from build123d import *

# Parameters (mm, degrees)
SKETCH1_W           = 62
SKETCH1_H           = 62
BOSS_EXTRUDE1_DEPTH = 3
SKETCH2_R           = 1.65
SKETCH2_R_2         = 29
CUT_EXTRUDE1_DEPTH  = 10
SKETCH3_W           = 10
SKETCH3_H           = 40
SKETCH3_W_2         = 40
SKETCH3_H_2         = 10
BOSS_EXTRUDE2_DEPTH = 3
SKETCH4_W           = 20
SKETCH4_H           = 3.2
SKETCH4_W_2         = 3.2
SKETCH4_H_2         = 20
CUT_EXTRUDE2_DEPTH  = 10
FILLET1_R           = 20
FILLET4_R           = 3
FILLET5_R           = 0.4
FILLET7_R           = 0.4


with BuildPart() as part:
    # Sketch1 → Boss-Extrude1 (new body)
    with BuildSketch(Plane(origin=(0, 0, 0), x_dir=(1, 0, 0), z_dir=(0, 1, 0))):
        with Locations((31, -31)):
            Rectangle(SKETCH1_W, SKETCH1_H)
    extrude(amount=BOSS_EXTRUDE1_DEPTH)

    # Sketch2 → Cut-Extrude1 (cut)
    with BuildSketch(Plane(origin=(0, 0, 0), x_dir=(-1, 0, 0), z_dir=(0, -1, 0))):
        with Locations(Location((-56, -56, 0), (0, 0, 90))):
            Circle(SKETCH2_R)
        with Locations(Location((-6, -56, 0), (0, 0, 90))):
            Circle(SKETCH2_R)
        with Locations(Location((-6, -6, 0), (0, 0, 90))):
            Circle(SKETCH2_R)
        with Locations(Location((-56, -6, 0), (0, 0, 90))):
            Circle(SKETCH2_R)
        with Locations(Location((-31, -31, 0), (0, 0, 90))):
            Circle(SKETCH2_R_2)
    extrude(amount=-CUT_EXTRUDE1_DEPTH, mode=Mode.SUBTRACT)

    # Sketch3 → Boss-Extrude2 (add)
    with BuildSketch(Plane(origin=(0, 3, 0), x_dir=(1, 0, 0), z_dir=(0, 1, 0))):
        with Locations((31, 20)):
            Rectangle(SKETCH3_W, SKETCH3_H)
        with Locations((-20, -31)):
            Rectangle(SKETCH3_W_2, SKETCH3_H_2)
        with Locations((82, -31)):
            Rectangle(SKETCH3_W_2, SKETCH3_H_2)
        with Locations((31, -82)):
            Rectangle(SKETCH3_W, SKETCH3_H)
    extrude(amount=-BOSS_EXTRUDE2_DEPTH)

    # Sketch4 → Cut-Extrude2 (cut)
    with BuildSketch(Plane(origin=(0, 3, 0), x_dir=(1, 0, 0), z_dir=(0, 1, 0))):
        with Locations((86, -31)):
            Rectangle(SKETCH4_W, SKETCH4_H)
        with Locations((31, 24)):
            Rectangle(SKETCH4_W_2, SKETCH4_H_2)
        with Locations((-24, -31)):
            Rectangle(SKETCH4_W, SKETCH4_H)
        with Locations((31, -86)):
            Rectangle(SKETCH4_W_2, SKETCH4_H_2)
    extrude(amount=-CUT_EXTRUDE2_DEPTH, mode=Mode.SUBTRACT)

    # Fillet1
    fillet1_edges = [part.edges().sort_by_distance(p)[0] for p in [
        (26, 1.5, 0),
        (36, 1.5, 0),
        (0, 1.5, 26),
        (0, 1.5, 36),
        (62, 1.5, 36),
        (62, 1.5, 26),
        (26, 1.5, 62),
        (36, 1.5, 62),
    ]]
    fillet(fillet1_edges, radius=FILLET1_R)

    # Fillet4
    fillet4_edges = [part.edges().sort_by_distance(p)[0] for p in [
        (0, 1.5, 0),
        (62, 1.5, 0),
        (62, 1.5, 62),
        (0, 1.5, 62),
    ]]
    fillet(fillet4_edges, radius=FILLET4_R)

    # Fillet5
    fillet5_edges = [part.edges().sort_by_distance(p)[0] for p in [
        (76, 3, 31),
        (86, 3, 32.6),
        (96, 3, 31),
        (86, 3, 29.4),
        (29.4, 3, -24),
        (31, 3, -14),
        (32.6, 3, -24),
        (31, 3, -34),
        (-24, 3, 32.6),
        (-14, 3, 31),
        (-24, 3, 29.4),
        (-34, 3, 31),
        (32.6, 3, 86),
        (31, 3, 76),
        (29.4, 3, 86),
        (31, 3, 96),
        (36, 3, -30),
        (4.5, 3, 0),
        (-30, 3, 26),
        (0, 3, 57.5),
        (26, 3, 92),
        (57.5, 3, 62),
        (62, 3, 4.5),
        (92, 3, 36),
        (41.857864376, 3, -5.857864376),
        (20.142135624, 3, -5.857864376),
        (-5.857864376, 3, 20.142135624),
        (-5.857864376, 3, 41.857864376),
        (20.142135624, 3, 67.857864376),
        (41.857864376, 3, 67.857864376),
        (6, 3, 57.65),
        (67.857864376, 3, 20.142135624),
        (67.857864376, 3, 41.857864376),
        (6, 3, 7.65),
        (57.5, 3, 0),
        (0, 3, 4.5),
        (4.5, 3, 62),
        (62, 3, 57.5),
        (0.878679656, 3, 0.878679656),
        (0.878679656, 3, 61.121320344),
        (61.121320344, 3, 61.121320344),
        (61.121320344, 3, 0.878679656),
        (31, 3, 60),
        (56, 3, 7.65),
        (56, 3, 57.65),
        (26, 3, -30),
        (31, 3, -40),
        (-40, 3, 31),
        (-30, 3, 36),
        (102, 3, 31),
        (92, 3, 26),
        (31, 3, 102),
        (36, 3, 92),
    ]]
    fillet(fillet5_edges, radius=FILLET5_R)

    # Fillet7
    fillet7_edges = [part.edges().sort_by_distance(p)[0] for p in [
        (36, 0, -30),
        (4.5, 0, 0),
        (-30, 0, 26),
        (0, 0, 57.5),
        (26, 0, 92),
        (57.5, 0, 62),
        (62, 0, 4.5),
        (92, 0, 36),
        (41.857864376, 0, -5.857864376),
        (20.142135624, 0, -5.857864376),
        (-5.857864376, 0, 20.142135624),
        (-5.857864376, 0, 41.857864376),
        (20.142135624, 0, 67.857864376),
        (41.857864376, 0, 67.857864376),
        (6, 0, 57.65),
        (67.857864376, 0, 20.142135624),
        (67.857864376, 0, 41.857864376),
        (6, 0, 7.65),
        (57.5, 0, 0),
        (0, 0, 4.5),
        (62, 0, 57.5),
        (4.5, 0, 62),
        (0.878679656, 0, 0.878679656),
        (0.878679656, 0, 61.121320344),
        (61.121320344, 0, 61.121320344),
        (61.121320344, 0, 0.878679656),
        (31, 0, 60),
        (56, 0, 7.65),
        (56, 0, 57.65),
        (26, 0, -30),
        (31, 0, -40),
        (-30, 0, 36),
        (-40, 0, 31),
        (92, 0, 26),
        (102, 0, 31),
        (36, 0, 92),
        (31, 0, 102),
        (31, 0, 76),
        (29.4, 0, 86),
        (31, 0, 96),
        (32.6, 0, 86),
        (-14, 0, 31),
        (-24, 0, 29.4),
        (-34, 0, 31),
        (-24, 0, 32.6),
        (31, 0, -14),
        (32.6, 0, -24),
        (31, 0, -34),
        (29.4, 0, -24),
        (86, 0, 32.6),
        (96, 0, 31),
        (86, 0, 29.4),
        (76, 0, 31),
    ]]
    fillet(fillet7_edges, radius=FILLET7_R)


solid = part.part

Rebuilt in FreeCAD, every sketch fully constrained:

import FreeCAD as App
import Part
import Sketcher
Q = App.Units.Quantity


def edges_at(feature, points):
    """Names of the edges that pass closest to the given points."""
    edges = feature.Shape.Edges
    near = lambda p: min(range(len(edges)), key=lambda i: edges[i].distToShape(Part.Vertex(*p))[0])
    return sorted({f"Edge{near(p) + 1}" for p in points})

doc = App.newDocument("Part")
params = doc.addObject("Spreadsheet::Sheet", "Params")
for row, (alias, value) in enumerate([
    ("sketch1_width", "62 mm"),
    ("pad1_length", "3 mm"),
    ("sketch2_diameter", "58 mm"),
    ("sketch2_diameter2", "3.3 mm"),
    ("pocket1_length", "10 mm"),
    ("sketch3_width", "10 mm"),
    ("sketch3_width2", "40 mm"),
    ("pad2_length", "3 mm"),
    ("sketch4_width", "20 mm"),
    ("sketch4_width2", "3.2 mm"),
    ("pocket2_length", "10 mm"),
    ("fillet_radius", "20 mm"),
    ("fillet2_radius", "3 mm"),
    ("fillet3_radius", "0.4 mm"),
    ("fillet4_radius", "0.4 mm"),
], start=1):
    params.set(f"A{row}", alias)
    params.set(f"B{row}", "=" + value)
    params.setAlias(f"B{row}", alias)

body = doc.addObject("PartDesign::Body", "Body")

# Sketch on XZ plane
sketch1 = body.newObject("Sketcher::SketchObject", "Sketch")
sketch1.AttachmentSupport = (doc.getObject("XZ_Plane"), [""])
sketch1.MapMode = "FlatFace"
sketch1.addGeometry(Part.LineSegment(App.Vector(0, 0, 0), App.Vector(0, 62, 0)), False)
sketch1.addGeometry(Part.LineSegment(App.Vector(0, 62, 0), App.Vector(62, 62, 0)), False)
sketch1.addGeometry(Part.LineSegment(App.Vector(62, 62, 0), App.Vector(62, 0, 0)), False)
sketch1.addGeometry(Part.LineSegment(App.Vector(62, 0, 0), App.Vector(0, 0, 0)), False)
sketch1.addConstraint(Sketcher.Constraint("Coincident", 0, 2, 1, 1))
sketch1.addConstraint(Sketcher.Constraint("Coincident", 1, 2, 2, 1))
sketch1.addConstraint(Sketcher.Constraint("Coincident", 2, 2, 3, 1))
sketch1.addConstraint(Sketcher.Constraint("Coincident", 3, 2, 0, 1))
sketch1.addConstraint(Sketcher.Constraint("Vertical", 0))
sketch1.addConstraint(Sketcher.Constraint("Horizontal", 1))
sketch1.addConstraint(Sketcher.Constraint("Vertical", 2))
sketch1.addConstraint(Sketcher.Constraint("Horizontal", 3))
sketch1.addConstraint(Sketcher.Constraint("Coincident", 3, 2, -1, 1))
sketch1.addConstraint(Sketcher.Constraint("Equal", 3, 0))
sketch1.addConstraint(Sketcher.Constraint("DistanceX", 1, 1, 1, 2, Q("62 mm")))
sketch1.setExpression("Constraints[10]", "Params.sketch1_width")
pad1 = body.newObject("PartDesign::Pad", "Pad")
pad1.Profile = sketch1
pad1.setExpression("Length", "Params.pad1_length")
pad1.Reversed = True

# Sketch on XZ plane
sketch2 = body.newObject("Sketcher::SketchObject", "Sketch001")
sketch2.AttachmentSupport = (doc.getObject("XZ_Plane"), [""])
sketch2.MapMode = "FlatFace"
sketch2.addGeometry(Part.Circle(App.Vector(56, 56, 0), App.Vector(0, 0, 1), 1.6), False)
sketch2.addGeometry(Part.Circle(App.Vector(6, 56, 0), App.Vector(0, 0, 1), 1.6), False)
sketch2.addGeometry(Part.Circle(App.Vector(6, 6, 0), App.Vector(0, 0, 1), 1.6), False)
sketch2.addGeometry(Part.Circle(App.Vector(56, 6, 0), App.Vector(0, 0, 1), 1.6), False)
sketch2.addGeometry(Part.Circle(App.Vector(31, 31, 0), App.Vector(0, 0, 1), 29), False)
sketch2.addConstraint(Sketcher.Constraint("Equal", 0, 1))
sketch2.addConstraint(Sketcher.Constraint("Equal", 1, 2))
sketch2.addConstraint(Sketcher.Constraint("Equal", 2, 3))
sketch2.addConstraint(Sketcher.Constraint("Horizontal", 0, 3, 1, 3))
sketch2.addConstraint(Sketcher.Constraint("Horizontal", 2, 3, 3, 3))
sketch2.addConstraint(Sketcher.Constraint("Vertical", 1, 3, 2, 3))
sketch2.addConstraint(Sketcher.Constraint("Vertical", 0, 3, 3, 3))
sketch2.addConstraint(Sketcher.Constraint("Diameter", 4, Q("58 mm")))
sketch2.addConstraint(Sketcher.Constraint("Diameter", 0, Q("3.3 mm")))
sketch2.addConstraint(Sketcher.Constraint("DistanceX", -1, 1, 0, 3, Q("56 mm")))
sketch2.addConstraint(Sketcher.Constraint("DistanceY", -1, 1, 0, 3, Q("56 mm")))
sketch2.addConstraint(Sketcher.Constraint("DistanceX", -1, 1, 1, 3, Q("6 mm")))
sketch2.addConstraint(Sketcher.Constraint("DistanceY", -1, 1, 2, 3, Q("6 mm")))
sketch2.addConstraint(Sketcher.Constraint("DistanceX", -1, 1, 4, 3, Q("31 mm")))
sketch2.addConstraint(Sketcher.Constraint("DistanceY", -1, 1, 4, 3, Q("31 mm")))
sketch2.setExpression("Constraints[7]", "Params.sketch2_diameter")
sketch2.setExpression("Constraints[8]", "Params.sketch2_diameter2")
pocket1 = body.newObject("PartDesign::Pocket", "Pocket")
pocket1.Profile = sketch2
pocket1.setExpression("Length", "Params.pocket1_length")

# Sketch on XZ plane
sketch3 = body.newObject("Sketcher::SketchObject", "Sketch002")
sketch3.AttachmentSupport = (doc.getObject("XZ_Plane"), [""])
sketch3.MapMode = "FlatFace"
sketch3.AttachmentOffset = App.Placement(App.Vector(0, 0, -3), App.Rotation())
sketch3.addGeometry(Part.LineSegment(App.Vector(26, -40, 0), App.Vector(26, 0, 0)), False)
sketch3.addGeometry(Part.LineSegment(App.Vector(26, 0, 0), App.Vector(36, 0, 0)), False)
sketch3.addGeometry(Part.LineSegment(App.Vector(36, 0, 0), App.Vector(36, -40, 0)), False)
sketch3.addGeometry(Part.LineSegment(App.Vector(36, -40, 0), App.Vector(26, -40, 0)), False)
sketch3.addGeometry(Part.LineSegment(App.Vector(-40, 26, 0), App.Vector(-40, 36, 0)), False)
sketch3.addGeometry(Part.LineSegment(App.Vector(-40, 36, 0), App.Vector(0, 36, 0)), False)
sketch3.addGeometry(Part.LineSegment(App.Vector(0, 36, 0), App.Vector(0, 26, 0)), False)
sketch3.addGeometry(Part.LineSegment(App.Vector(0, 26, 0), App.Vector(-40, 26, 0)), False)
sketch3.addGeometry(Part.LineSegment(App.Vector(62, 26, 0), App.Vector(62, 36, 0)), False)
sketch3.addGeometry(Part.LineSegment(App.Vector(62, 36, 0), App.Vector(102, 36, 0)), False)
sketch3.addGeometry(Part.LineSegment(App.Vector(102, 36, 0), App.Vector(102, 26, 0)), False)
sketch3.addGeometry(Part.LineSegment(App.Vector(102, 26, 0), App.Vector(62, 26, 0)), False)
sketch3.addGeometry(Part.LineSegment(App.Vector(26, 62, 0), App.Vector(26, 102, 0)), False)
sketch3.addGeometry(Part.LineSegment(App.Vector(26, 102, 0), App.Vector(36, 102, 0)), False)
sketch3.addGeometry(Part.LineSegment(App.Vector(36, 102, 0), App.Vector(36, 62, 0)), False)
sketch3.addGeometry(Part.LineSegment(App.Vector(36, 62, 0), App.Vector(26, 62, 0)), False)
sketch3.addConstraint(Sketcher.Constraint("Coincident", 0, 2, 1, 1))
sketch3.addConstraint(Sketcher.Constraint("Coincident", 1, 2, 2, 1))
sketch3.addConstraint(Sketcher.Constraint("Coincident", 2, 2, 3, 1))
sketch3.addConstraint(Sketcher.Constraint("Coincident", 3, 2, 0, 1))
sketch3.addConstraint(Sketcher.Constraint("Coincident", 4, 2, 5, 1))
sketch3.addConstraint(Sketcher.Constraint("Coincident", 5, 2, 6, 1))
sketch3.addConstraint(Sketcher.Constraint("Coincident", 6, 2, 7, 1))
sketch3.addConstraint(Sketcher.Constraint("Coincident", 7, 2, 4, 1))
sketch3.addConstraint(Sketcher.Constraint("Coincident", 8, 2, 9, 1))
sketch3.addConstraint(Sketcher.Constraint("Coincident", 9, 2, 10, 1))
sketch3.addConstraint(Sketcher.Constraint("Coincident", 10, 2, 11, 1))
sketch3.addConstraint(Sketcher.Constraint("Coincident", 11, 2, 8, 1))
sketch3.addConstraint(Sketcher.Constraint("Coincident", 12, 2, 13, 1))
sketch3.addConstraint(Sketcher.Constraint("Coincident", 13, 2, 14, 1))
sketch3.addConstraint(Sketcher.Constraint("Coincident", 14, 2, 15, 1))
sketch3.addConstraint(Sketcher.Constraint("Coincident", 15, 2, 12, 1))
sketch3.addConstraint(Sketcher.Constraint("Vertical", 0))
sketch3.addConstraint(Sketcher.Constraint("Horizontal", 1))
sketch3.addConstraint(Sketcher.Constraint("Vertical", 2))
sketch3.addConstraint(Sketcher.Constraint("Horizontal", 3))
sketch3.addConstraint(Sketcher.Constraint("Vertical", 4))
sketch3.addConstraint(Sketcher.Constraint("Horizontal", 5))
sketch3.addConstraint(Sketcher.Constraint("Vertical", 6))
sketch3.addConstraint(Sketcher.Constraint("Horizontal", 7))
sketch3.addConstraint(Sketcher.Constraint("Vertical", 8))
sketch3.addConstraint(Sketcher.Constraint("Horizontal", 9))
sketch3.addConstraint(Sketcher.Constraint("Vertical", 10))
sketch3.addConstraint(Sketcher.Constraint("Horizontal", 11))
sketch3.addConstraint(Sketcher.Constraint("Vertical", 12))
sketch3.addConstraint(Sketcher.Constraint("Horizontal", 13))
sketch3.addConstraint(Sketcher.Constraint("Vertical", 14))
sketch3.addConstraint(Sketcher.Constraint("Horizontal", 15))
sketch3.addConstraint(Sketcher.Constraint("PointOnObject", 0, 2, -1))
sketch3.addConstraint(Sketcher.Constraint("PointOnObject", 5, 2, -2))
sketch3.addConstraint(Sketcher.Constraint("Horizontal", 5, 2, 8, 2))
sketch3.addConstraint(Sketcher.Constraint("Horizontal", 7, 2, 10, 2))
sketch3.addConstraint(Sketcher.Constraint("Vertical", 3, 2, 12, 2))
sketch3.addConstraint(Sketcher.Constraint("Vertical", 2, 2, 13, 2))
sketch3.addConstraint(Sketcher.Constraint("Equal", 7, 9))
sketch3.addConstraint(Sketcher.Constraint("Equal", 11, 0))
sketch3.addConstraint(Sketcher.Constraint("Equal", 15, 4))
sketch3.addConstraint(Sketcher.Constraint("Equal", 2, 12))
sketch3.addConstraint(Sketcher.Constraint("DistanceX", 1, 1, 1, 2, Q("10 mm")))
sketch3.addConstraint(Sketcher.Constraint("DistanceX", 5, 1, 5, 2, Q("40 mm")))
sketch3.addConstraint(Sketcher.Constraint("DistanceX", -1, 1, 0, 2, Q("26 mm")))
sketch3.addConstraint(Sketcher.Constraint("DistanceY", -1, 1, 4, 2, Q("36 mm")))
sketch3.addConstraint(Sketcher.Constraint("DistanceX", -1, 1, 8, 2, Q("62 mm")))
sketch3.addConstraint(Sketcher.Constraint("DistanceY", -1, 1, 12, 2, Q("102 mm")))
sketch3.setExpression("Constraints[42]", "Params.sketch3_width")
sketch3.setExpression("Constraints[43]", "Params.sketch3_width2")
pad2 = body.newObject("PartDesign::Pad", "Pad001")
pad2.Profile = sketch3
pad2.setExpression("Length", "Params.pad2_length")

# Sketch on XZ plane
sketch4 = body.newObject("Sketcher::SketchObject", "Sketch003")
sketch4.AttachmentSupport = (doc.getObject("XZ_Plane"), [""])
sketch4.MapMode = "FlatFace"
sketch4.AttachmentOffset = App.Placement(App.Vector(0, 0, -3), App.Rotation())
sketch4.addGeometry(Part.LineSegment(App.Vector(76, 29.4, 0), App.Vector(76, 32.6, 0)), False)
sketch4.addGeometry(Part.LineSegment(App.Vector(76, 32.6, 0), App.Vector(96, 32.6, 0)), False)
sketch4.addGeometry(Part.LineSegment(App.Vector(96, 32.6, 0), App.Vector(96, 29.4, 0)), False)
sketch4.addGeometry(Part.LineSegment(App.Vector(96, 29.4, 0), App.Vector(76, 29.4, 0)), False)
sketch4.addGeometry(Part.LineSegment(App.Vector(29.4, -34, 0), App.Vector(29.4, -14, 0)), False)
sketch4.addGeometry(Part.LineSegment(App.Vector(29.4, -14, 0), App.Vector(32.6, -14, 0)), False)
sketch4.addGeometry(Part.LineSegment(App.Vector(32.6, -14, 0), App.Vector(32.6, -34, 0)), False)
sketch4.addGeometry(Part.LineSegment(App.Vector(32.6, -34, 0), App.Vector(29.4, -34, 0)), False)
sketch4.addGeometry(Part.LineSegment(App.Vector(-34, 29.4, 0), App.Vector(-34, 32.6, 0)), False)
sketch4.addGeometry(Part.LineSegment(App.Vector(-34, 32.6, 0), App.Vector(-14, 32.6, 0)), False)
sketch4.addGeometry(Part.LineSegment(App.Vector(-14, 32.6, 0), App.Vector(-14, 29.4, 0)), False)
sketch4.addGeometry(Part.LineSegment(App.Vector(-14, 29.4, 0), App.Vector(-34, 29.4, 0)), False)
sketch4.addGeometry(Part.LineSegment(App.Vector(29.4, 76, 0), App.Vector(29.4, 96, 0)), False)
sketch4.addGeometry(Part.LineSegment(App.Vector(29.4, 96, 0), App.Vector(32.6, 96, 0)), False)
sketch4.addGeometry(Part.LineSegment(App.Vector(32.6, 96, 0), App.Vector(32.6, 76, 0)), False)
sketch4.addGeometry(Part.LineSegment(App.Vector(32.6, 76, 0), App.Vector(29.4, 76, 0)), False)
sketch4.addConstraint(Sketcher.Constraint("Coincident", 0, 2, 1, 1))
sketch4.addConstraint(Sketcher.Constraint("Coincident", 1, 2, 2, 1))
sketch4.addConstraint(Sketcher.Constraint("Coincident", 2, 2, 3, 1))
sketch4.addConstraint(Sketcher.Constraint("Coincident", 3, 2, 0, 1))
sketch4.addConstraint(Sketcher.Constraint("Coincident", 4, 2, 5, 1))
sketch4.addConstraint(Sketcher.Constraint("Coincident", 5, 2, 6, 1))
sketch4.addConstraint(Sketcher.Constraint("Coincident", 6, 2, 7, 1))
sketch4.addConstraint(Sketcher.Constraint("Coincident", 7, 2, 4, 1))
sketch4.addConstraint(Sketcher.Constraint("Coincident", 8, 2, 9, 1))
sketch4.addConstraint(Sketcher.Constraint("Coincident", 9, 2, 10, 1))
sketch4.addConstraint(Sketcher.Constraint("Coincident", 10, 2, 11, 1))
sketch4.addConstraint(Sketcher.Constraint("Coincident", 11, 2, 8, 1))
sketch4.addConstraint(Sketcher.Constraint("Coincident", 12, 2, 13, 1))
sketch4.addConstraint(Sketcher.Constraint("Coincident", 13, 2, 14, 1))
sketch4.addConstraint(Sketcher.Constraint("Coincident", 14, 2, 15, 1))
sketch4.addConstraint(Sketcher.Constraint("Coincident", 15, 2, 12, 1))
sketch4.addConstraint(Sketcher.Constraint("Vertical", 0))
sketch4.addConstraint(Sketcher.Constraint("Horizontal", 1))
sketch4.addConstraint(Sketcher.Constraint("Vertical", 2))
sketch4.addConstraint(Sketcher.Constraint("Horizontal", 3))
sketch4.addConstraint(Sketcher.Constraint("Vertical", 4))
sketch4.addConstraint(Sketcher.Constraint("Horizontal", 5))
sketch4.addConstraint(Sketcher.Constraint("Vertical", 6))
sketch4.addConstraint(Sketcher.Constraint("Horizontal", 7))
sketch4.addConstraint(Sketcher.Constraint("Vertical", 8))
sketch4.addConstraint(Sketcher.Constraint("Horizontal", 9))
sketch4.addConstraint(Sketcher.Constraint("Vertical", 10))
sketch4.addConstraint(Sketcher.Constraint("Horizontal", 11))
sketch4.addConstraint(Sketcher.Constraint("Vertical", 12))
sketch4.addConstraint(Sketcher.Constraint("Horizontal", 13))
sketch4.addConstraint(Sketcher.Constraint("Vertical", 14))
sketch4.addConstraint(Sketcher.Constraint("Horizontal", 15))
sketch4.addConstraint(Sketcher.Constraint("Horizontal", 1, 2, 8, 2))
sketch4.addConstraint(Sketcher.Constraint("Horizontal", 3, 2, 10, 2))
sketch4.addConstraint(Sketcher.Constraint("Vertical", 7, 2, 12, 2))
sketch4.addConstraint(Sketcher.Constraint("Vertical", 6, 2, 13, 2))
sketch4.addConstraint(Sketcher.Constraint("Equal", 3, 9))
sketch4.addConstraint(Sketcher.Constraint("Equal", 15, 0))
sketch4.addConstraint(Sketcher.Constraint("Equal", 11, 4))
sketch4.addConstraint(Sketcher.Constraint("Equal", 6, 12))
sketch4.addConstraint(Sketcher.Constraint("DistanceX", 1, 1, 1, 2, Q("20 mm")))
sketch4.addConstraint(Sketcher.Constraint("DistanceX", 5, 1, 5, 2, Q("3.2 mm")))
sketch4.addConstraint(Sketcher.Constraint("DistanceX", -1, 1, 0, 2, Q("76 mm")))
sketch4.addConstraint(Sketcher.Constraint("DistanceY", 4, 2, -1, 1, Q("14 mm")))
sketch4.addConstraint(Sketcher.Constraint("DistanceX", 8, 2, -1, 1, Q("34 mm")))
sketch4.addConstraint(Sketcher.Constraint("DistanceY", -1, 1, 12, 2, Q("96 mm")))
sketch4.addConstraint(Sketcher.Constraint("DistanceY", -1, 1, 0, 2, Q("32.6 mm")))
sketch4.addConstraint(Sketcher.Constraint("DistanceX", -1, 1, 4, 2, Q("29.4 mm")))
sketch4.setExpression("Constraints[40]", "Params.sketch4_width")
sketch4.setExpression("Constraints[41]", "Params.sketch4_width2")
pocket2 = body.newObject("PartDesign::Pocket", "Pocket001")
pocket2.Profile = sketch4
pocket2.setExpression("Length", "Params.pocket2_length")
pocket2.Reversed = True
doc.recompute()

fillet = body.newObject("PartDesign::Fillet", "Fillet")
fillet.Base = (pocket2, edges_at(pocket2, [
    (26, 1.5, 0),
    (36, 1.5, 0),
    (0, 1.5, 26),
    (0, 1.5, 36),
    (62, 1.5, 36),
    (62, 1.5, 26),
    (26, 1.5, 62),
    (36, 1.5, 62),
]))
fillet.setExpression("Radius", "Params.fillet_radius")
doc.recompute()

fillet2 = body.newObject("PartDesign::Fillet", "Fillet001")
fillet2.Base = (fillet, edges_at(fillet, [
    (0, 1.5, 0),
    (62, 1.5, 0),
    (62, 1.5, 62),
    (0, 1.5, 62),
]))
fillet2.setExpression("Radius", "Params.fillet2_radius")
doc.recompute()

fillet3 = body.newObject("PartDesign::Fillet", "Fillet002")
fillet3.Base = (fillet2, edges_at(fillet2, [
    (76, 3, 31),
    (86, 3, 32.6),
    (96, 3, 31),
    (86, 3, 29.4),
    (29.4, 3, -24),
    (31, 3, -14),
    (32.6, 3, -24),
    (31, 3, -34),
    (-24, 3, 32.6),
    (-14, 3, 31),
    (-24, 3, 29.4),
    (-34, 3, 31),
    (32.6, 3, 86),
    (31, 3, 76),
    (29.4, 3, 86),
    (31, 3, 96),
    (36, 3, -30),
    (4.5, 3, 0),
    (-30, 3, 26),
    (0, 3, 57.5),
    (26, 3, 92),
    (57.5, 3, 62),
    (62, 3, 4.5),
    (92, 3, 36),
    (41.858, 3, -5.858),
    (20.142, 3, -5.858),
    (-5.858, 3, 20.142),
    (-5.858, 3, 41.858),
    (20.142, 3, 67.858),
    (41.858, 3, 67.858),
    (6, 3, 57.65),
    (67.858, 3, 20.142),
    (67.858, 3, 41.858),
    (6, 3, 7.65),
    (57.5, 3, 0),
    (0, 3, 4.5),
    (4.5, 3, 62),
    (62, 3, 57.5),
    (0.879, 3, 0.879),
    (0.879, 3, 61.121),
    (61.121, 3, 61.121),
    (61.121, 3, 0.879),
    (31, 3, 60),
    (56, 3, 7.65),
    (56, 3, 57.65),
    (26, 3, -30),
    (31, 3, -40),
    (-40, 3, 31),
    (-30, 3, 36),
    (102, 3, 31),
    (92, 3, 26),
    (31, 3, 102),
    (36, 3, 92),
]))
fillet3.setExpression("Radius", "Params.fillet3_radius")
doc.recompute()

fillet4 = body.newObject("PartDesign::Fillet", "Fillet003")
fillet4.Base = (fillet3, edges_at(fillet3, [
    (36, 0, -30),
    (4.5, 0, 0),
    (-30, 0, 26),
    (0, 0, 57.5),
    (26, 0, 92),
    (57.5, 0, 62),
    (62, 0, 4.5),
    (92, 0, 36),
    (41.858, 0, -5.858),
    (20.142, 0, -5.858),
    (-5.858, 0, 20.142),
    (-5.858, 0, 41.858),
    (20.142, 0, 67.858),
    (41.858, 0, 67.858),
    (6, 0, 57.65),
    (67.858, 0, 20.142),
    (67.858, 0, 41.858),
    (6, 0, 7.65),
    (57.5, 0, 0),
    (0, 0, 4.5),
    (62, 0, 57.5),
    (4.5, 0, 62),
    (0.879, 0, 0.879),
    (0.879, 0, 61.121),
    (61.121, 0, 61.121),
    (61.121, 0, 0.879),
    (31, 0, 60),
    (56, 0, 7.65),
    (56, 0, 57.65),
    (26, 0, -30),
    (31, 0, -40),
    (-30, 0, 36),
    (-40, 0, 31),
    (92, 0, 26),
    (102, 0, 31),
    (36, 0, 92),
    (31, 0, 102),
    (31, 0, 76),
    (29.4, 0, 86),
    (31, 0, 96),
    (32.6, 0, 86),
    (-14, 0, 31),
    (-24, 0, 29.4),
    (-34, 0, 31),
    (-24, 0, 32.6),
    (31, 0, -14),
    (32.6, 0, -24),
    (31, 0, -34),
    (29.4, 0, -24),
    (86, 0, 32.6),
    (96, 0, 31),
    (86, 0, 29.4),
    (76, 0, 31),
]))
fillet4.setExpression("Radius", "Params.fillet4_radius")

doc.recompute()
